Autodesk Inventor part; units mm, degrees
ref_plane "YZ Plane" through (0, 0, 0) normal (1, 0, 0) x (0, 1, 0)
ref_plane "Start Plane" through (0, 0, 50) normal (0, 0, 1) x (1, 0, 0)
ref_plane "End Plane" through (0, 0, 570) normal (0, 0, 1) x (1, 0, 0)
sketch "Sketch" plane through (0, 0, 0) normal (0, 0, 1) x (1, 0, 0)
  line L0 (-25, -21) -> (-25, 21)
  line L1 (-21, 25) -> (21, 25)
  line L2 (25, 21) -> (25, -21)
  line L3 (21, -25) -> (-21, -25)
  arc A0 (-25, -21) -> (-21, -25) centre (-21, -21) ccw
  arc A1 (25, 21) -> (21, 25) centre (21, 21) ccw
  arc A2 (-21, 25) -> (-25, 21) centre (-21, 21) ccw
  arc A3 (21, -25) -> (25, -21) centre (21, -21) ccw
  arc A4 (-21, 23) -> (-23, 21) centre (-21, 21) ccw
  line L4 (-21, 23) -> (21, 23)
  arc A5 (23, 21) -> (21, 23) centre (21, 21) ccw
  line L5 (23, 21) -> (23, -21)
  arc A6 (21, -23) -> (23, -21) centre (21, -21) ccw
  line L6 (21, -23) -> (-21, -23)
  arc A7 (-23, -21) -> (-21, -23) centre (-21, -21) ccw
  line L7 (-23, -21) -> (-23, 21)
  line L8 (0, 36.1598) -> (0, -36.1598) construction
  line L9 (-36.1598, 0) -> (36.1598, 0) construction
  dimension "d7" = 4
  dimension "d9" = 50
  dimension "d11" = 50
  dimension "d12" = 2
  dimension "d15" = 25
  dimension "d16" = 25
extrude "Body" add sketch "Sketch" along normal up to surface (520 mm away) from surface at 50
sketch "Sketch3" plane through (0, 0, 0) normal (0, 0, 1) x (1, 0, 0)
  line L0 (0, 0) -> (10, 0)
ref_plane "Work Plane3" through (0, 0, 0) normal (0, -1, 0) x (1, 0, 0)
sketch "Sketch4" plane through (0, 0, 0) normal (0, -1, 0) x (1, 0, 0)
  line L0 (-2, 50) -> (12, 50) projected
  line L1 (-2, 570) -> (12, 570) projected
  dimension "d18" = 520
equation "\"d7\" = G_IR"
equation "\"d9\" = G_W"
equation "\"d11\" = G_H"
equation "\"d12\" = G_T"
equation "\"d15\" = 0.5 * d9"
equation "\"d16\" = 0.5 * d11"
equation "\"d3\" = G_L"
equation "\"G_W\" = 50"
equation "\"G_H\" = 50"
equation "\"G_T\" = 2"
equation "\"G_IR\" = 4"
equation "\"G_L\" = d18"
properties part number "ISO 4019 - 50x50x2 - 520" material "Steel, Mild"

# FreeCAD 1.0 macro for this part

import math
import FreeCAD as App
import Part
import Sketcher
from FreeCAD import Vector
Q = App.Units.Quantity

doc = App.newDocument("Part")
params = doc.addObject("Spreadsheet::Sheet", "Params")
for row, (alias, value) in enumerate([
    ("sketch1_radius", "4 mm"),
    ("sketch1_radius2", "2 mm"),
    ("pad1_length", "520 mm"),
], start=1):
    params.set(f"A{row}", alias)
    params.set(f"B{row}", "=" + value)
    params.setAlias(f"B{row}", alias)

body = doc.addObject("PartDesign::Body", "Body")

# Sketch on XY plane
sketch1 = body.newObject("Sketcher::SketchObject", "Sketch")
sketch1.AttachmentSupport = (doc.getObject("XY_Plane"), [""])
sketch1.MapMode = "FlatFace"
sketch1.AttachmentOffset = App.Placement(Vector(0, 0, 50), App.Rotation())
sketch1.addGeometry(Part.LineSegment(Vector(-25, 21, 0), Vector(-25, -21, 0)), False)
sketch1.addGeometry(Part.ArcOfCircle(Part.Circle(Vector(-21, -21, 0), Vector(0, 0, 1), 4), math.radians(180), math.radians(270)), False)
sketch1.addGeometry(Part.LineSegment(Vector(-21, -25, 0), Vector(21, -25, 0)), False)
sketch1.addGeometry(Part.ArcOfCircle(Part.Circle(Vector(21, -21, 0), Vector(0, 0, 1), 4), math.radians(-90), math.radians(0)), False)
sketch1.addGeometry(Part.LineSegment(Vector(25, -21, 0), Vector(25, 21, 0)), False)
sketch1.addGeometry(Part.ArcOfCircle(Part.Circle(Vector(21, 21, 0), Vector(0, 0, 1), 4), math.radians(0), math.radians(90)), False)
sketch1.addGeometry(Part.LineSegment(Vector(21, 25, 0), Vector(-21, 25, 0)), False)
sketch1.addGeometry(Part.ArcOfCircle(Part.Circle(Vector(-21, 21, 0), Vector(0, 0, 1), 4), math.radians(90), math.radians(180)), False)
sketch1.addGeometry(Part.ArcOfCircle(Part.Circle(Vector(-21, 21, 0), Vector(0, 0, 1), 2), math.radians(90), math.radians(180)), False)
sketch1.addGeometry(Part.LineSegment(Vector(-21, 23, 0), Vector(21, 23, 0)), False)
sketch1.addGeometry(Part.ArcOfCircle(Part.Circle(Vector(21, 21, 0), Vector(0, 0, 1), 2), math.radians(0), math.radians(90)), False)
sketch1.addGeometry(Part.LineSegment(Vector(23, 21, 0), Vector(23, -21, 0)), False)
sketch1.addGeometry(Part.ArcOfCircle(Part.Circle(Vector(21, -21, 0), Vector(0, 0, 1), 2), math.radians(-90), math.radians(0)), False)
sketch1.addGeometry(Part.LineSegment(Vector(21, -23, 0), Vector(-21, -23, 0)), False)
sketch1.addGeometry(Part.ArcOfCircle(Part.Circle(Vector(-21, -21, 0), Vector(0, 0, 1), 2), math.radians(180), math.radians(270)), False)
sketch1.addGeometry(Part.LineSegment(Vector(-23, -21, 0), Vector(-23, 21, 0)), False)
sketch1.addConstraint(Sketcher.Constraint("Tangent", 0, 2, 1, 1))
sketch1.addConstraint(Sketcher.Constraint("Tangent", 1, 2, 2, 1))
sketch1.addConstraint(Sketcher.Constraint("Tangent", 2, 2, 3, 1))
sketch1.addConstraint(Sketcher.Constraint("Tangent", 3, 2, 4, 1))
sketch1.addConstraint(Sketcher.Constraint("Tangent", 4, 2, 5, 1))
sketch1.addConstraint(Sketcher.Constraint("Tangent", 5, 2, 6, 1))
sketch1.addConstraint(Sketcher.Constraint("Tangent", 6, 2, 7, 1))
sketch1.addConstraint(Sketcher.Constraint("Tangent", 7, 2, 0, 1))
sketch1.addConstraint(Sketcher.Constraint("Tangent", 8, 1, 9, 1))
sketch1.addConstraint(Sketcher.Constraint("Tangent", 9, 2, 10, 2))
sketch1.addConstraint(Sketcher.Constraint("Tangent", 10, 1, 11, 1))
sketch1.addConstraint(Sketcher.Constraint("Tangent", 11, 2, 12, 2))
sketch1.addConstraint(Sketcher.Constraint("Tangent", 12, 1, 13, 1))
sketch1.addConstraint(Sketcher.Constraint("Tangent", 13, 2, 14, 2))
sketch1.addConstraint(Sketcher.Constraint("Tangent", 14, 1, 15, 1))
sketch1.addConstraint(Sketcher.Constraint("Tangent", 15, 2, 8, 2))
sketch1.addConstraint(Sketcher.Constraint("Vertical", 0))
sketch1.addConstraint(Sketcher.Constraint("Horizontal", 2))
sketch1.addConstraint(Sketcher.Constraint("Vertical", 4))
sketch1.addConstraint(Sketcher.Constraint("Horizontal", 6))
sketch1.addConstraint(Sketcher.Constraint("Horizontal", 9))
sketch1.addConstraint(Sketcher.Constraint("Vertical", 11))
sketch1.addConstraint(Sketcher.Constraint("Horizontal", 13))
sketch1.addConstraint(Sketcher.Constraint("Vertical", 15))
sketch1.addConstraint(Sketcher.Constraint("Coincident", 8, 3, 7, 3))
sketch1.addConstraint(Sketcher.Constraint("Coincident", 10, 3, 5, 3))
sketch1.addConstraint(Sketcher.Constraint("Coincident", 12, 3, 3, 3))
sketch1.addConstraint(Sketcher.Constraint("Equal", 1, 3))
sketch1.addConstraint(Sketcher.Constraint("Equal", 3, 5))
sketch1.addConstraint(Sketcher.Constraint("Equal", 5, 7))
sketch1.addConstraint(Sketcher.Constraint("Equal", 12, 14))
sketch1.addConstraint(Sketcher.Constraint("Symmetric", 1, 3, 5, 3, -1, 1))
sketch1.addConstraint(Sketcher.Constraint("Equal", 13, 0))
sketch1.addConstraint(Sketcher.Constraint("Radius", 1, Q("4 mm")))
sketch1.addConstraint(Sketcher.Constraint("Radius", 8, Q("2 mm")))
sketch1.addConstraint(Sketcher.Constraint("DistanceX", 0, 2, -1, 1, Q("25 mm")))
sketch1.setExpression("Constraints[33]", "Params.sketch1_radius")
sketch1.setExpression("Constraints[34]", "Params.sketch1_radius2")
pad1 = body.newObject("PartDesign::Pad", "Pad")
pad1.Profile = sketch1
pad1.setExpression("Length", "Params.pad1_length")

doc.recompute()
